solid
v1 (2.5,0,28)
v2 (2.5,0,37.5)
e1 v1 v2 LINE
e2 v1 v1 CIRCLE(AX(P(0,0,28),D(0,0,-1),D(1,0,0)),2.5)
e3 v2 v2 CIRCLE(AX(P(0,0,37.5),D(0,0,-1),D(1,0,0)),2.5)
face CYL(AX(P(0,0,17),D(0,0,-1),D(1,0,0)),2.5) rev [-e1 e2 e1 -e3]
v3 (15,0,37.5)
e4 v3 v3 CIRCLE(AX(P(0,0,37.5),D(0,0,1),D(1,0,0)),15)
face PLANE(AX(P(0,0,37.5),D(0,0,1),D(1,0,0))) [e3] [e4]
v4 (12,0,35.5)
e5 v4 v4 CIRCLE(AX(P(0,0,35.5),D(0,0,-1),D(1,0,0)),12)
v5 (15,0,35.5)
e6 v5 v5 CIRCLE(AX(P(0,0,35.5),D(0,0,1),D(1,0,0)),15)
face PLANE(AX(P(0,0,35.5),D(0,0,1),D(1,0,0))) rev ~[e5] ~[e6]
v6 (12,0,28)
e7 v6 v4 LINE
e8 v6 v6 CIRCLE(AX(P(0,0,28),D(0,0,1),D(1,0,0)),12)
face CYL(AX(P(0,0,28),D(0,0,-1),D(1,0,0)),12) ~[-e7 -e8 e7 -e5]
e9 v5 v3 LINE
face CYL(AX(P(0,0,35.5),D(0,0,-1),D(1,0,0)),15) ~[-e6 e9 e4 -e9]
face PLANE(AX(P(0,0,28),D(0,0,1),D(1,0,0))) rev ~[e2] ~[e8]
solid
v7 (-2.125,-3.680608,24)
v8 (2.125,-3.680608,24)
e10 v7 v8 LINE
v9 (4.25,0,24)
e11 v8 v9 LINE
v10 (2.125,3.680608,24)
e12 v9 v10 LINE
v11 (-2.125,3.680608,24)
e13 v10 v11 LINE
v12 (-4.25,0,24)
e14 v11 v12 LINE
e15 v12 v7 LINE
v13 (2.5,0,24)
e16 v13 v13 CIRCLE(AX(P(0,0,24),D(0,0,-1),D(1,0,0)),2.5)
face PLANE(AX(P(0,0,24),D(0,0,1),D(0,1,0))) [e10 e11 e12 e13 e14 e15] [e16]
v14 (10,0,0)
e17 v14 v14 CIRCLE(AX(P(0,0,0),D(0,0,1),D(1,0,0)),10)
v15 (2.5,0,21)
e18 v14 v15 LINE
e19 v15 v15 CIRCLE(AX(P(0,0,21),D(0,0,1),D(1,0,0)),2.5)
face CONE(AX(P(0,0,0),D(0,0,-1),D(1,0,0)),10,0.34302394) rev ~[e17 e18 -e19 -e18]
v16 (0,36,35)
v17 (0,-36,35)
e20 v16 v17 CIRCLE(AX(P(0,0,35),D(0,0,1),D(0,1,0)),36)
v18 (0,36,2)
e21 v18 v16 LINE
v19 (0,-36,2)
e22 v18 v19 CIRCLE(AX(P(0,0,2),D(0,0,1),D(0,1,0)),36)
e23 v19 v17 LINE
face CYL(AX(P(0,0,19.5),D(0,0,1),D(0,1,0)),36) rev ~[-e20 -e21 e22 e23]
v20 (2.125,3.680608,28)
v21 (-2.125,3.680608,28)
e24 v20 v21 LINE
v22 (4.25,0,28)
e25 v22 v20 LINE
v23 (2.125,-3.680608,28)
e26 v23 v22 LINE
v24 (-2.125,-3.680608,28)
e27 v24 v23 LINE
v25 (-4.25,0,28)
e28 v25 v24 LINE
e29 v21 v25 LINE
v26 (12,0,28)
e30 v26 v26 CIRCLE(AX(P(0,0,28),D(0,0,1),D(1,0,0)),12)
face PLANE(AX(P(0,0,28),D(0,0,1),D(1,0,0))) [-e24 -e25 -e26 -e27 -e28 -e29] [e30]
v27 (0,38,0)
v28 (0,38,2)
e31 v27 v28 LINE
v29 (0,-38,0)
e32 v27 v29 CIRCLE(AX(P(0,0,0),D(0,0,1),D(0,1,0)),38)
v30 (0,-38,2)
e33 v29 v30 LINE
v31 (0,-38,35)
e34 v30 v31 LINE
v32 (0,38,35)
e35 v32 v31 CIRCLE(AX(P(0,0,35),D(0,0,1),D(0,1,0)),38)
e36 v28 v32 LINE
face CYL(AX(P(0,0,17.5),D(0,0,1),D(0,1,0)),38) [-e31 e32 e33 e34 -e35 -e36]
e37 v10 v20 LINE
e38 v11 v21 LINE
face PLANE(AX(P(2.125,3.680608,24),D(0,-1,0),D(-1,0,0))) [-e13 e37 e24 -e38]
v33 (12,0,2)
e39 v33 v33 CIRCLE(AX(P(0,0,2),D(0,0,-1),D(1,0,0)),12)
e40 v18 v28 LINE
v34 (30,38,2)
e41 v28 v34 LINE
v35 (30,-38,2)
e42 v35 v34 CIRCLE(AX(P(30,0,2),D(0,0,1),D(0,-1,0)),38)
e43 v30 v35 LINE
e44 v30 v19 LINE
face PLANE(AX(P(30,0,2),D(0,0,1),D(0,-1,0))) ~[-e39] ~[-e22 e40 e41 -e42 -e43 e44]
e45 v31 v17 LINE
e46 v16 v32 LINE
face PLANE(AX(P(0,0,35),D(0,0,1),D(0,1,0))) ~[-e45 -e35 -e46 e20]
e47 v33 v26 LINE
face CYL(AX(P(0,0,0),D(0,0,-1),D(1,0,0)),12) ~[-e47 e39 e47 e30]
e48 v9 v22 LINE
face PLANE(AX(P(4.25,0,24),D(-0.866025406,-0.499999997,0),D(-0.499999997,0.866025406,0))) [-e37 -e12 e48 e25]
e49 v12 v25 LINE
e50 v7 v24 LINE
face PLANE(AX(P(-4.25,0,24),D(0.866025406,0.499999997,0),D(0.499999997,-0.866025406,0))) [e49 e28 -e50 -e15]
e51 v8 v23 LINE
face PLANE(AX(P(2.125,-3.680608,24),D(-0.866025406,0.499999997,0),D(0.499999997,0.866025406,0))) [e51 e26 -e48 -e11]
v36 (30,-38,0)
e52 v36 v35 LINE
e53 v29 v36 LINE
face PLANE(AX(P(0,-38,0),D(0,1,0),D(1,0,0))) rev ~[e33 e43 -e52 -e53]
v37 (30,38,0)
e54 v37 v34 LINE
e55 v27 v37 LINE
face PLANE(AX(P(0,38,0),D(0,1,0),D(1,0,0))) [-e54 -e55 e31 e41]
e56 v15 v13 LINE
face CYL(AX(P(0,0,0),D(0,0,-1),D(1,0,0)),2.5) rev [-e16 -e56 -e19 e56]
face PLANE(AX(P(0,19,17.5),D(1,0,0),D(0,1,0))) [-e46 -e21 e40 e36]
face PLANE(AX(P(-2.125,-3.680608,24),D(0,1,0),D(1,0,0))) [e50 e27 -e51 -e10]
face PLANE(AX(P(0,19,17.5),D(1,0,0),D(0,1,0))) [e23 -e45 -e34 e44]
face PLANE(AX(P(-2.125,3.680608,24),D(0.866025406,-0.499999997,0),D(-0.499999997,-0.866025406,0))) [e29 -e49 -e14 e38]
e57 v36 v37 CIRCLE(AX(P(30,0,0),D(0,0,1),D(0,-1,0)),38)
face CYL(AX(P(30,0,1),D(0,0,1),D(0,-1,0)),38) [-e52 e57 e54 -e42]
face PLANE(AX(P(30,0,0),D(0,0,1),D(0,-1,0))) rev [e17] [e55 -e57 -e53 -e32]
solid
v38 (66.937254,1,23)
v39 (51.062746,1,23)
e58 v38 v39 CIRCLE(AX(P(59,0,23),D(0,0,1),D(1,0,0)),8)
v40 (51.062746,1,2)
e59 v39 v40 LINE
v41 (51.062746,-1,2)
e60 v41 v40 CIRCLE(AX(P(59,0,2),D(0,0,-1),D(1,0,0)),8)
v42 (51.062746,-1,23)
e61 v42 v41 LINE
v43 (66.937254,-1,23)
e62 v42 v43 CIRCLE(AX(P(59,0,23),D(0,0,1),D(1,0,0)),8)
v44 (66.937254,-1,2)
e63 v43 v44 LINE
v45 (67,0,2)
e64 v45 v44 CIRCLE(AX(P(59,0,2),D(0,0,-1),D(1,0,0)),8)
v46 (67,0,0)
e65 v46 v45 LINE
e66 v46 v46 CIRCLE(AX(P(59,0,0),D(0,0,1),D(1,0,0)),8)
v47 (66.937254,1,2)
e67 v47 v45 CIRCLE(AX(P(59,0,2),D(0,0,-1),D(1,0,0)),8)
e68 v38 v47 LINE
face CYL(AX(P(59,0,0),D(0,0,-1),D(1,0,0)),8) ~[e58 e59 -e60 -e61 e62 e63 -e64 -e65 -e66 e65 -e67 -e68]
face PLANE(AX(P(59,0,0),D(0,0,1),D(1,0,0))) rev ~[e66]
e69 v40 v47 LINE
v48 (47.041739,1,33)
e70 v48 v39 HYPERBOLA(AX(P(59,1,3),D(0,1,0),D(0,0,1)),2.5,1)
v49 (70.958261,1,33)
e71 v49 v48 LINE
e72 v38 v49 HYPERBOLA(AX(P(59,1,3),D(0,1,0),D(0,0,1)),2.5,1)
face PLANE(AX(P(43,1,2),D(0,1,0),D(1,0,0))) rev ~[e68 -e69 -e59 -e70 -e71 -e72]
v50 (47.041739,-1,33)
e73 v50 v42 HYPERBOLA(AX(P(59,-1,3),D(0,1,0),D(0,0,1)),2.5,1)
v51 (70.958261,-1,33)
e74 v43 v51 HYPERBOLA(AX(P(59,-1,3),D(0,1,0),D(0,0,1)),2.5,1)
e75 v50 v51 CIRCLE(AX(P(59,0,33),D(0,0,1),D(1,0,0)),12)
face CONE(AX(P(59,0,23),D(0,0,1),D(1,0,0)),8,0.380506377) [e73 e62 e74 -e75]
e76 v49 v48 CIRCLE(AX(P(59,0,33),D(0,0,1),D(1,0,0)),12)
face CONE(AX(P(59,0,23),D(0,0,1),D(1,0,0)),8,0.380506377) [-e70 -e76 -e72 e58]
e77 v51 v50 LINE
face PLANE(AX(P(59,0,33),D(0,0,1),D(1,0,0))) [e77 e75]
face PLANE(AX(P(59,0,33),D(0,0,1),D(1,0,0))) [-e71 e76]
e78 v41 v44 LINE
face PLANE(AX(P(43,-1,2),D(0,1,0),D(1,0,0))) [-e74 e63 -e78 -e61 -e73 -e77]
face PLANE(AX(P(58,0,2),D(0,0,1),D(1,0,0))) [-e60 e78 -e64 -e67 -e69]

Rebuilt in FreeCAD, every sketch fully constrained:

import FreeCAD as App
import Part
import Sketcher
from FreeCAD import Vector
Q = App.Units.Quantity

doc = App.newDocument("Part")
body = doc.addObject("PartDesign::Body", "Body")

sketch1 = body.newObject("Sketcher::SketchObject", "Sketch")
sketch1.AttachmentSupport = (doc.getObject("XZ_Plane"), [""])
sketch1.MapMode = "FlatFace"
sketch1.addGeometry([
    Part.LineSegment(Vector(0, 0, 0), Vector(10, 0, 0)),
    Part.LineSegment(Vector(10, 0, 0), Vector(2.5, 21, 0)),
    Part.LineSegment(Vector(2.5, 21, 0), Vector(0, 21, 0)),
    Part.LineSegment(Vector(0, 21, 0), Vector(0, 0, 0)),
], False)
sketch1.addConstraint([
    Sketcher.Constraint("Coincident", 0, 2, 1, 1),
    Sketcher.Constraint("Coincident", 1, 2, 2, 1),
    Sketcher.Constraint("Coincident", 2, 2, 3, 1),
    Sketcher.Constraint("Coincident", 3, 2, 0, 1),
    Sketcher.Constraint("Horizontal", 0),
    Sketcher.Constraint("Horizontal", 2),
    Sketcher.Constraint("Vertical", 3),
    Sketcher.Constraint("Coincident", 3, 2, -1, 1),
    Sketcher.Constraint("DistanceX", 0, 1, 0, 2, 10.0),
    Sketcher.Constraint("DistanceY", 3, 2, 3, 1, 21.0),
    Sketcher.Constraint("DistanceX", 2, 2, 2, 1, 2.5),
])
revolution = body.newObject("PartDesign::Revolution", "Revolution")
revolution.Profile = sketch1
revolution.ReferenceAxis = (sketch1, ["V_Axis"])
revolution.Angle = 360
body2 = doc.addObject("PartDesign::Body", "Body001")

sketch2 = body2.newObject("Sketcher::SketchObject", "Sketch001")
sketch2.AttachmentSupport = (doc.getObject("XY_Plane001"), [""])
sketch2.MapMode = "FlatFace"
sketch2.addGeometry([
    Part.LineSegment(Vector(4.2, 0, 0), Vector(2.1, 3.7, 0)),
    Part.LineSegment(Vector(2.1, 3.7, 0), Vector(-2.1, 3.7, 0)),
    Part.LineSegment(Vector(-2.1, 3.7, 0), Vector(-4.2, 0, 0)),
    Part.LineSegment(Vector(-4.2, 0, 0), Vector(-2.1, -3.7, 0)),
    Part.LineSegment(Vector(-2.1, -3.7, 0), Vector(2.1, -3.7, 0)),
    Part.LineSegment(Vector(2.1, -3.7, 0), Vector(4.2, 0, 0)),
], False)
sketch2.addConstraint([
    Sketcher.Constraint("Coincident", 0, 2, 1, 1),
    Sketcher.Constraint("Coincident", 1, 2, 2, 1),
    Sketcher.Constraint("Coincident", 2, 2, 3, 1),
    Sketcher.Constraint("Coincident", 3, 2, 4, 1),
    Sketcher.Constraint("Coincident", 4, 2, 5, 1),
    Sketcher.Constraint("Coincident", 5, 2, 0, 1),
    Sketcher.Constraint("Horizontal", 1),
    Sketcher.Constraint("Horizontal", 4),
    Sketcher.Constraint("Symmetric", 0, 2, 3, 2, -1, 1),
    Sketcher.Constraint("Symmetric", 2, 2, 5, 2, -1, 1),
    Sketcher.Constraint("PointOnObject", 2, 2, -1),
    Sketcher.Constraint("Parallel", 2, 5),
    Sketcher.Constraint("Vertical", 1, 2, 3, 2),
    Sketcher.Constraint("Angle", 0, Q("120 deg")),
    Sketcher.Constraint("DistanceX", 1, 2, 1, 1, 4.25),
    Sketcher.Constraint("DistanceX", 2, 2, 5, 2, 8.5),
])
pad1 = body2.newObject("PartDesign::Pad", "Pad")
pad1.Profile = sketch2
pad1.Length = 4
body3 = doc.addObject("PartDesign::Body", "Body002")
doc.recompute()

body2.Placement = App.Placement(Vector(0, 0, 24), App.Rotation(Vector(0, 0, 1), 0))
boolean = body3.newObject("PartDesign::Boolean", "Boolean")
boolean.Type = "Fuse"
boolean.addObjects([body2])
body4 = doc.addObject("PartDesign::Body", "Body003")

sketch3 = body4.newObject("Sketcher::SketchObject", "Sketch002")
sketch3.AttachmentSupport = (doc.getObject("XY_Plane003"), [""])
sketch3.MapMode = "FlatFace"
sketch3.addGeometry(Part.Circle(Vector(0, 0, 0), Vector(0, 0, 1), 2.5), False)
sketch3.addConstraint([
    Sketcher.Constraint("Coincident", 0, 3, -1, 1),
    Sketcher.Constraint("Diameter", 0, 5.0),
])
pad2 = body4.newObject("PartDesign::Pad", "Pad001")
pad2.Profile = sketch3
pad2.Length = 30
doc.recompute()

boolean2 = body4.newObject("PartDesign::Boolean", "Boolean001")
boolean2.Type = "Fuse"
boolean2.addObjects([body])
doc.recompute()

boolean3 = body4.newObject("PartDesign::Boolean", "Boolean002")
boolean3.Type = "Fuse"
boolean3.addObjects([body3])
body5 = doc.addObject("PartDesign::Body", "Body004")

sketch4 = body5.newObject("Sketcher::SketchObject", "Sketch003")
sketch4.AttachmentSupport = (doc.getObject("XY_Plane004"), [""])
sketch4.MapMode = "FlatFace"
sketch4.addGeometry([
    Part.LineSegment(Vector(0, 38, 0), Vector(0, -38, 0)),
    Part.LineSegment(Vector(0, -38, 0), Vector(30, -38, 0)),
    Part.LineSegment(Vector(30, -38, 0), Vector(30, 38, 0)),
    Part.LineSegment(Vector(30, 38, 0), Vector(0, 38, 0)),
], False)
sketch4.addConstraint([
    Sketcher.Constraint("Coincident", 0, 2, 1, 1),
    Sketcher.Constraint("Coincident", 1, 2, 2, 1),
    Sketcher.Constraint("Coincident", 2, 2, 3, 1),
    Sketcher.Constraint("Coincident", 3, 2, 0, 1),
    Sketcher.Constraint("Vertical", 0),
    Sketcher.Constraint("Horizontal", 1),
    Sketcher.Constraint("Vertical", 2),
    Sketcher.Constraint("Horizontal", 3),
    Sketcher.Constraint("Symmetric", 0, 2, 3, 2, -1, 1),
    Sketcher.Constraint("DistanceX", 1, 1, 1, 2, 30.0),
    Sketcher.Constraint("DistanceY", 0, 2, 0, 1, 76.0),
])
pad3 = body5.newObject("PartDesign::Pad", "Pad002")
pad3.Profile = sketch4
pad3.Length = 2
body6 = doc.addObject("PartDesign::Body", "Body005")

sketch5 = body6.newObject("Sketcher::SketchObject", "Sketch004")
sketch5.AttachmentSupport = (doc.getObject("YZ_Plane005"), [""])
sketch5.MapMode = "FlatFace"
sketch5.addGeometry([
    Part.LineSegment(Vector(0, 37, 0), Vector(0, 2, 0)),
    Part.LineSegment(Vector(0, 2, 0), Vector(36, 2, 0)),
    Part.LineSegment(Vector(36, 2, 0), Vector(36, 37, 0)),
    Part.LineSegment(Vector(36, 37, 0), Vector(0, 37, 0)),
], False)
sketch5.addConstraint([
    Sketcher.Constraint("Coincident", 0, 2, 1, 1),
    Sketcher.Constraint("Coincident", 1, 2, 2, 1),
    Sketcher.Constraint("Coincident", 2, 2, 3, 1),
    Sketcher.Constraint("Coincident", 3, 2, 0, 1),
    Sketcher.Constraint("Vertical", 0),
    Sketcher.Constraint("Horizontal", 1),
    Sketcher.Constraint("Vertical", 2),
    Sketcher.Constraint("Horizontal", 3),
    Sketcher.Constraint("PointOnObject", 0, 2, -2),
    Sketcher.Constraint("DistanceX", 1, 1, 1, 2, 36.0),
    Sketcher.Constraint("DistanceY", 0, 2, 0, 1, 35.0),
    Sketcher.Constraint("DistanceY", -1, 1, 0, 2, 2.0),
])
revolution2 = body6.newObject("PartDesign::Revolution", "Revolution001")
revolution2.Profile = sketch5
revolution2.ReferenceAxis = (sketch5, ["V_Axis"])
revolution2.Angle = 180
body7 = doc.addObject("PartDesign::Body", "Body006")

sketch6 = body7.newObject("Sketcher::SketchObject", "Sketch005")
sketch6.AttachmentSupport = (doc.getObject("YZ_Plane006"), [""])
sketch6.MapMode = "FlatFace"
sketch6.addGeometry([
    Part.LineSegment(Vector(0, 35, 0), Vector(0, 0, 0)),
    Part.LineSegment(Vector(0, 0, 0), Vector(38, 0, 0)),
    Part.LineSegment(Vector(38, 0, 0), Vector(38, 35, 0)),
    Part.LineSegment(Vector(38, 35, 0), Vector(0, 35, 0)),
], False)
sketch6.addConstraint([
    Sketcher.Constraint("Coincident", 0, 2, 1, 1),
    Sketcher.Constraint("Coincident", 1, 2, 2, 1),
    Sketcher.Constraint("Coincident", 2, 2, 3, 1),
    Sketcher.Constraint("Coincident", 3, 2, 0, 1),
    Sketcher.Constraint("Vertical", 0),
    Sketcher.Constraint("Horizontal", 1),
    Sketcher.Constraint("Vertical", 2),
    Sketcher.Constraint("Horizontal", 3),
    Sketcher.Constraint("Coincident", 0, 2, -1, 1),
    Sketcher.Constraint("DistanceX", 1, 1, 1, 2, 38.0),
    Sketcher.Constraint("DistanceY", 0, 2, 0, 1, 35.0),
])
revolution3 = body7.newObject("PartDesign::Revolution", "Revolution002")
revolution3.Profile = sketch6
revolution3.ReferenceAxis = (sketch6, ["V_Axis"])
revolution3.Angle = 180
doc.recompute()

boolean4 = body7.newObject("PartDesign::Boolean", "Boolean003")
boolean4.Type = "Cut"
boolean4.addObjects([body6])
body8 = doc.addObject("PartDesign::Body", "Body007")

sketch7 = body8.newObject("Sketcher::SketchObject", "Sketch006")
sketch7.AttachmentSupport = (doc.getObject("YZ_Plane007"), [""])
sketch7.MapMode = "FlatFace"
sketch7.AttachmentOffset = App.Placement(Vector(0, 0, 30), App.Rotation())
sketch7.addGeometry([
    Part.LineSegment(Vector(0, 2, 0), Vector(0, 0, 0)),
    Part.LineSegment(Vector(0, 0, 0), Vector(-38, 0, 0)),
    Part.LineSegment(Vector(-38, 0, 0), Vector(-38, 2, 0)),
    Part.LineSegment(Vector(-38, 2, 0), Vector(0, 2, 0)),
], False)
sketch7.addConstraint([
    Sketcher.Constraint("Coincident", 0, 2, 1, 1),
    Sketcher.Constraint("Coincident", 1, 2, 2, 1),
    Sketcher.Constraint("Coincident", 2, 2, 3, 1),
    Sketcher.Constraint("Coincident", 3, 2, 0, 1),
    Sketcher.Constraint("Vertical", 0),
    Sketcher.Constraint("Horizontal", 1),
    Sketcher.Constraint("Vertical", 2),
    Sketcher.Constraint("Horizontal", 3),
    Sketcher.Constraint("Coincident", 0, 2, -1, 1),
    Sketcher.Constraint("DistanceX", 1, 2, 1, 1, 38.0),
    Sketcher.Constraint("DistanceY", 0, 2, 0, 1, 2.0),
])
revolution4 = body8.newObject("PartDesign::Revolution", "Revolution003")
revolution4.Profile = sketch7
revolution4.ReferenceAxis = (sketch7, ["V_Axis"])
revolution4.Angle = 180
body9 = doc.addObject("PartDesign::Body", "Body008")

sketch8 = body9.newObject("Sketcher::SketchObject", "Sketch007")
sketch8.AttachmentSupport = (doc.getObject("XY_Plane008"), [""])
sketch8.MapMode = "FlatFace"
sketch8.addGeometry(Part.Circle(Vector(0, 0, 0), Vector(0, 0, 1), 12), False)
sketch8.addConstraint([
    Sketcher.Constraint("Coincident", 0, 3, -1, 1),
    Sketcher.Constraint("Diameter", 0, 24.0),
])
pad4 = body9.newObject("PartDesign::Pad", "Pad003")
pad4.Profile = sketch8
pad4.Length = 28
doc.recompute()

boolean5 = body9.newObject("PartDesign::Boolean", "Boolean004")
boolean5.Type = "Fuse"
boolean5.addObjects([body5])
doc.recompute()

boolean6 = body9.newObject("PartDesign::Boolean", "Boolean005")
boolean6.Type = "Fuse"
boolean6.addObjects([body7])
doc.recompute()

boolean7 = body9.newObject("PartDesign::Boolean", "Boolean006")
boolean7.Type = "Fuse"
boolean7.addObjects([body8])
doc.recompute()

boolean8 = body9.newObject("PartDesign::Boolean", "Boolean007")
boolean8.Type = "Cut"
boolean8.addObjects([body4])
body10 = doc.addObject("PartDesign::Body", "Body009")

sketch9 = body10.newObject("Sketcher::SketchObject", "Sketch008")
sketch9.AttachmentSupport = (doc.getObject("XY_Plane009"), [""])
sketch9.MapMode = "FlatFace"
sketch9.AttachmentOffset = App.Placement(Vector(0, 0, 2), App.Rotation())
sketch9.addGeometry([
    Part.LineSegment(Vector(43, 1, 0), Vector(43, -1, 0)),
    Part.LineSegment(Vector(43, -1, 0), Vector(73, -1, 0)),
    Part.LineSegment(Vector(73, -1, 0), Vector(73, 1, 0)),
    Part.LineSegment(Vector(73, 1, 0), Vector(43, 1, 0)),
], False)
sketch9.addConstraint([
    Sketcher.Constraint("Coincident", 0, 2, 1, 1),
    Sketcher.Constraint("Coincident", 1, 2, 2, 1),
    Sketcher.Constraint("Coincident", 2, 2, 3, 1),
    Sketcher.Constraint("Coincident", 3, 2, 0, 1),
    Sketcher.Constraint("Vertical", 0),
    Sketcher.Constraint("Horizontal", 1),
    Sketcher.Constraint("Vertical", 2),
    Sketcher.Constraint("Horizontal", 3),
    Sketcher.Constraint("DistanceX", 1, 1, 1, 2, 30.0),
    Sketcher.Constraint("DistanceY", 0, 2, 0, 1, 2.0),
    Sketcher.Constraint("DistanceX", -1, 1, 0, 2, 43.0),
    Sketcher.Constraint("DistanceY", 0, 2, -1, 1, 1.0),
])
pad5 = body10.newObject("PartDesign::Pad", "Pad004")
pad5.Profile = sketch9
pad5.Length = 35
body11 = doc.addObject("PartDesign::Body", "Body010")

sketch10 = body11.newObject("Sketcher::SketchObject", "Sketch009")
sketch10.AttachmentSupport = (doc.getObject("XY_Plane010"), [""])
sketch10.MapMode = "FlatFace"
sketch10.addGeometry(Part.Circle(Vector(59, 0, 0), Vector(0, 0, 1), 8), False)
sketch10.addConstraint([
    Sketcher.Constraint("PointOnObject", 0, 3, -1),
    Sketcher.Constraint("Diameter", 0, 16.0),
    Sketcher.Constraint("DistanceX", -1, 1, 0, 3, 59.0),
])
pad6 = body11.newObject("PartDesign::Pad", "Pad005")
pad6.Profile = sketch10
pad6.Length = 32
body12 = doc.addObject("PartDesign::Body", "Body011")

sketch11 = body12.newObject("Sketcher::SketchObject", "Sketch010")
sketch11.AttachmentSupport = (doc.getObject("XZ_Plane011"), [""])
sketch11.MapMode = "FlatFace"
sketch11.addGeometry([
    Part.LineSegment(Vector(59, 23, 0), Vector(67, 23, 0)),
    Part.LineSegment(Vector(67, 23, 0), Vector(71, 33, 0)),
    Part.LineSegment(Vector(71, 33, 0), Vector(59, 33, 0)),
    Part.LineSegment(Vector(59, 33, 0), Vector(59, 23, 0)),
], False)
sketch11.addGeometry(Part.LineSegment(Vector(59, 23, 0), Vector(59, 33, 0)), True)
sketch11.addConstraint([
    Sketcher.Constraint("Coincident", 0, 2, 1, 1),
    Sketcher.Constraint("Coincident", 1, 2, 2, 1),
    Sketcher.Constraint("Coincident", 2, 2, 3, 1),
    Sketcher.Constraint("Coincident", 3, 2, 0, 1),
    Sketcher.Constraint("Horizontal", 0),
    Sketcher.Constraint("Horizontal", 2),
    Sketcher.Constraint("Vertical", 3),
    Sketcher.Constraint("Vertical", 4),
    Sketcher.Constraint("Coincident", 4, 1, 3, 2),
    Sketcher.Constraint("Horizontal", 1, 2, 4, 2),
    Sketcher.Constraint("DistanceX", 0, 1, 0, 2, 8.0),
    Sketcher.Constraint("DistanceX", 2, 2, 2, 1, 12.0),
    Sketcher.Constraint("DistanceY", 3, 2, 3, 1, 10.0),
    Sketcher.Constraint("DistanceX", -1, 1, 0, 2, 67.0),
    Sketcher.Constraint("DistanceY", -1, 1, 0, 2, 23.0),
])
revolution5 = body12.newObject("PartDesign::Revolution", "Revolution004")
revolution5.Profile = sketch11
revolution5.ReferenceAxis = (sketch11, ["Axis0"])
revolution5.Angle = 360
doc.recompute()

boolean9 = body12.newObject("PartDesign::Boolean", "Boolean008")
boolean9.Type = "Fuse"
boolean9.addObjects([body11])
doc.recompute()

boolean10 = body12.newObject("PartDesign::Boolean", "Boolean009")
boolean10.Type = "Cut"
boolean10.addObjects([body10])
body13 = doc.addObject("PartDesign::Body", "Body012")

sketch12 = body13.newObject("Sketcher::SketchObject", "Sketch011")
sketch12.AttachmentSupport = (doc.getObject("XY_Plane012"), [""])
sketch12.MapMode = "FlatFace"
sketch12.AttachmentOffset = App.Placement(Vector(0, 0, 17), App.Rotation())
sketch12.addGeometry(Part.Circle(Vector(0, 0, 0), Vector(0, 0, 1), 2.5), False)
sketch12.addConstraint([
    Sketcher.Constraint("Coincident", 0, 3, -1, 1),
    Sketcher.Constraint("Diameter", 0, 5.0),
])
pad7 = body13.newObject("PartDesign::Pad", "Pad006")
pad7.Profile = sketch12
pad7.Length = 30
body14 = doc.addObject("PartDesign::Body", "Body013")

sketch13 = body14.newObject("Sketcher::SketchObject", "Sketch012")
sketch13.AttachmentSupport = (doc.getObject("XY_Plane013"), [""])
sketch13.MapMode = "FlatFace"
sketch13.AttachmentOffset = App.Placement(Vector(0, 0, 28), App.Rotation())
sketch13.addGeometry(Part.Circle(Vector(0, 0, 0), Vector(0, 0, 1), 12), False)
sketch13.addConstraint([
    Sketcher.Constraint("Coincident", 0, 3, -1, 1),
    Sketcher.Constraint("Diameter", 0, 24.0),
])
pad8 = body14.newObject("PartDesign::Pad", "Pad007")
pad8.Profile = sketch13
pad8.Length = 9
body15 = doc.addObject("PartDesign::Body", "Body014")

sketch14 = body15.newObject("Sketcher::SketchObject", "Sketch013")
sketch14.AttachmentSupport = (doc.getObject("XY_Plane014"), [""])
sketch14.MapMode = "FlatFace"
sketch14.AttachmentOffset = App.Placement(Vector(0, 0, 35.5), App.Rotation())
sketch14.addGeometry(Part.Circle(Vector(0, 0, 0), Vector(0, 0, 1), 15), False)
sketch14.addConstraint([
    Sketcher.Constraint("Coincident", 0, 3, -1, 1),
    Sketcher.Constraint("Diameter", 0, 30.0),
])
pad9 = body15.newObject("PartDesign::Pad", "Pad008")
pad9.Profile = sketch14
pad9.Length = 2
doc.recompute()

boolean11 = body15.newObject("PartDesign::Boolean", "Boolean010")
boolean11.Type = "Fuse"
boolean11.addObjects([body14])
doc.recompute()

boolean12 = body15.newObject("PartDesign::Boolean", "Boolean011")
boolean12.Type = "Cut"
boolean12.addObjects([body13])

doc.recompute()
